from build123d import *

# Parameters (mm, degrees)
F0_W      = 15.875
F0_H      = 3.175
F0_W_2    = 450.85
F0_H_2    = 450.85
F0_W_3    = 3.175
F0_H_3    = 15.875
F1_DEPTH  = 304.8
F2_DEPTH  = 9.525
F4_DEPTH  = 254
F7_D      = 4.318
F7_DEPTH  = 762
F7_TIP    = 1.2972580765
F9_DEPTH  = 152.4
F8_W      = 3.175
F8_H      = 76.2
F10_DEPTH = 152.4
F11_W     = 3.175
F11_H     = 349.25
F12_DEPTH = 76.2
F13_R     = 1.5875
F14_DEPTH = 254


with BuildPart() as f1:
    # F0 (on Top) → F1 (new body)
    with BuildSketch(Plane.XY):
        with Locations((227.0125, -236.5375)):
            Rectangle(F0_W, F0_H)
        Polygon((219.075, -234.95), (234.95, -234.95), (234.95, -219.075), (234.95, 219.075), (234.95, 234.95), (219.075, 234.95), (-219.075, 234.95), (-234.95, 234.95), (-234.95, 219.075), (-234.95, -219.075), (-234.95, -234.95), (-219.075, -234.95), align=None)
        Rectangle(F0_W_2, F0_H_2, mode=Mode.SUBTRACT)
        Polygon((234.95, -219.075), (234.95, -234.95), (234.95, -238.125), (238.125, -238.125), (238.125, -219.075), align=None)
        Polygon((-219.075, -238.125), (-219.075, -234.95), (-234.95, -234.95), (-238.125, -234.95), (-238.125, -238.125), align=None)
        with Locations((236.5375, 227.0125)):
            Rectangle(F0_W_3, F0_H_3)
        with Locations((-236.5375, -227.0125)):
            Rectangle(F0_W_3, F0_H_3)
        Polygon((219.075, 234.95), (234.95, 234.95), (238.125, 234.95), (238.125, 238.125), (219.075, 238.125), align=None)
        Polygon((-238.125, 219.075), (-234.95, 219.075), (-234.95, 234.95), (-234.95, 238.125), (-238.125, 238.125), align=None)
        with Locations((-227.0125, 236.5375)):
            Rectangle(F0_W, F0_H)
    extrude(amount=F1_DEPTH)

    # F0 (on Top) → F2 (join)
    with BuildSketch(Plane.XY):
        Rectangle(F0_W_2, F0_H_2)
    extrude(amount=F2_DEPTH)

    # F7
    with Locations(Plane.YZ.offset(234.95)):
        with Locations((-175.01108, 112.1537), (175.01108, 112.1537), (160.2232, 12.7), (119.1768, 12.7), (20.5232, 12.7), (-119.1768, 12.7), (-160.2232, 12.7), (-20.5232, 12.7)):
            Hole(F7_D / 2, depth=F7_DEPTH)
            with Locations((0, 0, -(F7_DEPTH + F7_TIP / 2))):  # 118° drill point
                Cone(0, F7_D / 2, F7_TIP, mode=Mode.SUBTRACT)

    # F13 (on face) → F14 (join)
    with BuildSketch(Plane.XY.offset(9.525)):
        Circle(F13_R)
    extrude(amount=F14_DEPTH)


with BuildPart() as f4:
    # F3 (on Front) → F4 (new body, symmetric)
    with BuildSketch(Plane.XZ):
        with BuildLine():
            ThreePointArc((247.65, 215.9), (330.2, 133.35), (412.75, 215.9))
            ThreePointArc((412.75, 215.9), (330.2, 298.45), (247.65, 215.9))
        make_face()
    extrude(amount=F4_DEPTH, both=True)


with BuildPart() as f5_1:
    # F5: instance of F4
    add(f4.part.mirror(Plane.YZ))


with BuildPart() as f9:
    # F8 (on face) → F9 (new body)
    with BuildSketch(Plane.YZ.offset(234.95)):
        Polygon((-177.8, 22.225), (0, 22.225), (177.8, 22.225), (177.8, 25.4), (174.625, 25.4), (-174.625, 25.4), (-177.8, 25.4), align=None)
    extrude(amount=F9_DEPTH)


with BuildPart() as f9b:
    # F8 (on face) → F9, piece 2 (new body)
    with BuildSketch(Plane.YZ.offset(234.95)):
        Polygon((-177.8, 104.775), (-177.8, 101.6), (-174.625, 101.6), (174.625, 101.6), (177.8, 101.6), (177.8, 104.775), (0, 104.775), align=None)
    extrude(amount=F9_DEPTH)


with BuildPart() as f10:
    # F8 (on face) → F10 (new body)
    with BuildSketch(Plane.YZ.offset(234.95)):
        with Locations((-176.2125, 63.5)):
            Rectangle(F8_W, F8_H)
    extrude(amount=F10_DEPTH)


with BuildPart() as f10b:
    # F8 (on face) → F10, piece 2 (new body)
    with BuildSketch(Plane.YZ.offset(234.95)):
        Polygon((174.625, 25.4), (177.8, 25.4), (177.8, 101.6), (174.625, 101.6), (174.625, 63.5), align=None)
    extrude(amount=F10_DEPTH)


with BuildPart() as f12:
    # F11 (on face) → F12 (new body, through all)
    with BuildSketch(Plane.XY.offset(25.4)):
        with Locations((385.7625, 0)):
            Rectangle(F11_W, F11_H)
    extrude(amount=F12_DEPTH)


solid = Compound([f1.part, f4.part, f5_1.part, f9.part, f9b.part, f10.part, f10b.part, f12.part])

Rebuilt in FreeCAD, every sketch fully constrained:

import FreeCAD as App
import Part
import Sketcher

V = App.Vector
Q = App.Units.Quantity

doc = App.newDocument("Part")
body = doc.addObject("PartDesign::Body", "Body")

sketch1 = body.newObject("Sketcher::SketchObject", "Sketch")
sketch1.AttachmentSupport = (doc.getObject("XY_Plane"), [""])
sketch1.MapMode = "FlatFace"
sketch1.addGeometry(Part.LineSegment(V(219.1, -234.9, 0), V(219.1, -238.1, 0)), False)
sketch1.addGeometry(Part.LineSegment(V(219.1, -238.1, 0), V(238.1, -238.1, 0)), False)
sketch1.addGeometry(Part.LineSegment(V(238.1, -238.1, 0), V(238.1, -219.1, 0)), False)
sketch1.addGeometry(Part.LineSegment(V(238.1, -219.1, 0), V(234.9, -219.1, 0)), False)
sketch1.addGeometry(Part.LineSegment(V(234.9, -219.1, 0), V(234.9, 219.1, 0)), False)
sketch1.addGeometry(Part.LineSegment(V(234.9, 219.1, 0), V(238.1, 219.1, 0)), False)
sketch1.addGeometry(Part.LineSegment(V(238.1, 219.1, 0), V(238.1, 238.1, 0)), False)
sketch1.addGeometry(Part.LineSegment(V(238.1, 238.1, 0), V(219.1, 238.1, 0)), False)
sketch1.addGeometry(Part.LineSegment(V(219.1, 238.1, 0), V(219.1, 234.9, 0)), False)
sketch1.addGeometry(Part.LineSegment(V(219.1, 234.9, 0), V(-219.1, 234.9, 0)), False)
sketch1.addGeometry(Part.LineSegment(V(-219.1, 234.9, 0), V(-219.1, 238.1, 0)), False)
sketch1.addGeometry(Part.LineSegment(V(-219.1, 238.1, 0), V(-238.1, 238.1, 0)), False)
sketch1.addGeometry(Part.LineSegment(V(-238.1, 238.1, 0), V(-238.1, 219.1, 0)), False)
sketch1.addGeometry(Part.LineSegment(V(-238.1, 219.1, 0), V(-234.9, 219.1, 0)), False)
sketch1.addGeometry(Part.LineSegment(V(-234.9, 219.1, 0), V(-234.9, -219.1, 0)), False)
sketch1.addGeometry(Part.LineSegment(V(-234.9, -219.1, 0), V(-238.1, -219.1, 0)), False)
sketch1.addGeometry(Part.LineSegment(V(-238.1, -219.1, 0), V(-238.1, -238.1, 0)), False)
sketch1.addGeometry(Part.LineSegment(V(-238.1, -238.1, 0), V(-219.1, -238.1, 0)), False)
sketch1.addGeometry(Part.LineSegment(V(-219.1, -238.1, 0), V(-219.1, -234.9, 0)), False)
sketch1.addGeometry(Part.LineSegment(V(-219.1, -234.9, 0), V(219.1, -234.9, 0)), False)
sketch1.addGeometry(Part.LineSegment(V(225.4, -225.4, 0), V(-225.4, -225.4, 0)), False)
sketch1.addGeometry(Part.LineSegment(V(-225.4, -225.4, 0), V(-225.4, 225.4, 0)), False)
sketch1.addGeometry(Part.LineSegment(V(-225.4, 225.4, 0), V(225.4, 225.4, 0)), False)
sketch1.addGeometry(Part.LineSegment(V(225.4, 225.4, 0), V(225.4, -225.4, 0)), False)
sketch1.addConstraint(Sketcher.Constraint("Coincident", 0, 2, 1, 1))
sketch1.addConstraint(Sketcher.Constraint("Coincident", 1, 2, 2, 1))
sketch1.addConstraint(Sketcher.Constraint("Coincident", 2, 2, 3, 1))
sketch1.addConstraint(Sketcher.Constraint("Coincident", 3, 2, 4, 1))
sketch1.addConstraint(Sketcher.Constraint("Coincident", 4, 2, 5, 1))
sketch1.addConstraint(Sketcher.Constraint("Coincident", 5, 2, 6, 1))
sketch1.addConstraint(Sketcher.Constraint("Coincident", 6, 2, 7, 1))
sketch1.addConstraint(Sketcher.Constraint("Coincident", 7, 2, 8, 1))
sketch1.addConstraint(Sketcher.Constraint("Coincident", 8, 2, 9, 1))
sketch1.addConstraint(Sketcher.Constraint("Coincident", 9, 2, 10, 1))
sketch1.addConstraint(Sketcher.Constraint("Coincident", 10, 2, 11, 1))
sketch1.addConstraint(Sketcher.Constraint("Coincident", 11, 2, 12, 1))
sketch1.addConstraint(Sketcher.Constraint("Coincident", 12, 2, 13, 1))
sketch1.addConstraint(Sketcher.Constraint("Coincident", 13, 2, 14, 1))
sketch1.addConstraint(Sketcher.Constraint("Coincident", 14, 2, 15, 1))
sketch1.addConstraint(Sketcher.Constraint("Coincident", 15, 2, 16, 1))
sketch1.addConstraint(Sketcher.Constraint("Coincident", 16, 2, 17, 1))
sketch1.addConstraint(Sketcher.Constraint("Coincident", 17, 2, 18, 1))
sketch1.addConstraint(Sketcher.Constraint("Coincident", 18, 2, 19, 1))
sketch1.addConstraint(Sketcher.Constraint("Coincident", 19, 2, 0, 1))
sketch1.addConstraint(Sketcher.Constraint("Coincident", 20, 2, 21, 1))
sketch1.addConstraint(Sketcher.Constraint("Coincident", 21, 2, 22, 1))
sketch1.addConstraint(Sketcher.Constraint("Coincident", 22, 2, 23, 1))
sketch1.addConstraint(Sketcher.Constraint("Coincident", 23, 2, 20, 1))
sketch1.addConstraint(Sketcher.Constraint("Vertical", 0))
sketch1.addConstraint(Sketcher.Constraint("Horizontal", 1))
sketch1.addConstraint(Sketcher.Constraint("Vertical", 2))
sketch1.addConstraint(Sketcher.Constraint("Horizontal", 3))
sketch1.addConstraint(Sketcher.Constraint("Vertical", 4))
sketch1.addConstraint(Sketcher.Constraint("Horizontal", 5))
sketch1.addConstraint(Sketcher.Constraint("Vertical", 6))
sketch1.addConstraint(Sketcher.Constraint("Horizontal", 7))
sketch1.addConstraint(Sketcher.Constraint("Vertical", 8))
sketch1.addConstraint(Sketcher.Constraint("Horizontal", 9))
sketch1.addConstraint(Sketcher.Constraint("Vertical", 10))
sketch1.addConstraint(Sketcher.Constraint("Horizontal", 11))
sketch1.addConstraint(Sketcher.Constraint("Vertical", 12))
sketch1.addConstraint(Sketcher.Constraint("Horizontal", 13))
sketch1.addConstraint(Sketcher.Constraint("Vertical", 14))
sketch1.addConstraint(Sketcher.Constraint("Horizontal", 15))
sketch1.addConstraint(Sketcher.Constraint("Vertical", 16))
sketch1.addConstraint(Sketcher.Constraint("Horizontal", 17))
sketch1.addConstraint(Sketcher.Constraint("Vertical", 18))
sketch1.addConstraint(Sketcher.Constraint("Horizontal", 19))
sketch1.addConstraint(Sketcher.Constraint("Horizontal", 20))
sketch1.addConstraint(Sketcher.Constraint("Vertical", 21))
sketch1.addConstraint(Sketcher.Constraint("Horizontal", 22))
sketch1.addConstraint(Sketcher.Constraint("Vertical", 23))
sketch1.addConstraint(Sketcher.Constraint("Symmetric", 0, 2, 10, 2, -1, 1))
sketch1.addConstraint(Sketcher.Constraint("Symmetric", 2, 2, 12, 2, -1, 1))
sketch1.addConstraint(Sketcher.Constraint("Symmetric", 4, 2, 14, 2, -1, 1))
sketch1.addConstraint(Sketcher.Constraint("Symmetric", 6, 2, 16, 2, -1, 1))
sketch1.addConstraint(Sketcher.Constraint("Symmetric", 8, 2, 18, 2, -1, 1))
sketch1.addConstraint(Sketcher.Constraint("Symmetric", 20, 2, 22, 2, -1, 1))
sketch1.addConstraint(Sketcher.Constraint("Symmetric", 7, 2, 10, 2, -2))
sketch1.addConstraint(Sketcher.Constraint("Symmetric", 5, 2, 12, 2, -2))
sketch1.addConstraint(Sketcher.Constraint("Equal", 15, 0))
sketch1.addConstraint(Sketcher.Constraint("Equal", 17, 2))
sketch1.addConstraint(Sketcher.Constraint("Equal", 19, 4))
sketch1.addConstraint(Sketcher.Constraint("Equal", 22, 21))
sketch1.addConstraint(Sketcher.Constraint("DistanceY", 1, 2, 4, 2, Q("18 in")))
sketch1.addConstraint(Sketcher.Constraint("DistanceX", 1, 1, 1, 2, Q("0.75 in")))
sketch1.addConstraint(Sketcher.Constraint("DistanceX", 20, 2, 20, 1, Q("17.75 in")))
sketch1.addConstraint(Sketcher.Constraint("DistanceX", 3, 2, 3, 1, Q("0.125 in")))
pad1 = body.newObject("PartDesign::Pad", "Pad")
pad1.Profile = sketch1
pad1.Length = Q("12 in")

sketch2 = body.newObject("Sketcher::SketchObject", "Sketch001")
sketch2.AttachmentSupport = (doc.getObject("XY_Plane"), [""])
sketch2.MapMode = "FlatFace"
sketch2.addGeometry(Part.LineSegment(V(-225, 225, 0), V(-225, -225, 0)), False)
sketch2.addGeometry(Part.LineSegment(V(-225, -225, 0), V(225, -225, 0)), False)
sketch2.addGeometry(Part.LineSegment(V(225, -225, 0), V(225, 225, 0)), False)
sketch2.addGeometry(Part.LineSegment(V(225, 225, 0), V(-225, 225, 0)), False)
sketch2.addConstraint(Sketcher.Constraint("Coincident", 0, 2, 1, 1))
sketch2.addConstraint(Sketcher.Constraint("Coincident", 1, 2, 2, 1))
sketch2.addConstraint(Sketcher.Constraint("Coincident", 2, 2, 3, 1))
sketch2.addConstraint(Sketcher.Constraint("Coincident", 3, 2, 0, 1))
sketch2.addConstraint(Sketcher.Constraint("Vertical", 0))
sketch2.addConstraint(Sketcher.Constraint("Horizontal", 1))
sketch2.addConstraint(Sketcher.Constraint("Vertical", 2))
sketch2.addConstraint(Sketcher.Constraint("Horizontal", 3))
sketch2.addConstraint(Sketcher.Constraint("Symmetric", 0, 2, 2, 2, -1, 1))
sketch2.addConstraint(Sketcher.Constraint("Equal", 3, 0))
sketch2.addConstraint(Sketcher.Constraint("DistanceX", 1, 1, 1, 2, Q("17.75 in")))
pad2 = body.newObject("PartDesign::Pad", "Pad001")
pad2.Profile = sketch2
pad2.Length = Q("0.375 in")

sketch3 = body.newObject("Sketcher::SketchObject", "Sketch002")
sketch3.AttachmentSupport = (doc.getObject("YZ_Plane"), [""])
sketch3.MapMode = "FlatFace"
sketch3.AttachmentOffset = App.Placement(V(0, 0, 9.25 * 25.4), App.Rotation())
sketch3.addGeometry(Part.Circle(V(-175, 112.2, 0), V(0, 0, 1), 2.2), False)
sketch3.addGeometry(Part.Circle(V(175, 112.2, 0), V(0, 0, 1), 2.2), False)
sketch3.addGeometry(Part.Circle(V(160.2, 12.7, 0), V(0, 0, 1), 2.2), False)
sketch3.addGeometry(Part.Circle(V(119.2, 12.7, 0), V(0, 0, 1), 2.2), False)
sketch3.addGeometry(Part.Circle(V(20.5, 12.7, 0), V(0, 0, 1), 2.2), False)
sketch3.addGeometry(Part.Circle(V(-119.2, 12.7, 0), V(0, 0, 1), 2.2), False)
sketch3.addGeometry(Part.Circle(V(-160.2, 12.7, 0), V(0, 0, 1), 2.2), False)
sketch3.addGeometry(Part.Circle(V(-20.5, 12.7, 0), V(0, 0, 1), 2.2), False)
sketch3.addConstraint(Sketcher.Constraint("Equal", 0, 1))
sketch3.addConstraint(Sketcher.Constraint("Equal", 1, 2))
sketch3.addConstraint(Sketcher.Constraint("Equal", 2, 3))
sketch3.addConstraint(Sketcher.Constraint("Equal", 3, 4))
sketch3.addConstraint(Sketcher.Constraint("Equal", 4, 5))
sketch3.addConstraint(Sketcher.Constraint("Equal", 5, 6))
sketch3.addConstraint(Sketcher.Constraint("Equal", 6, 7))
sketch3.addConstraint(Sketcher.Constraint("Symmetric", 0, 3, 1, 3, -2))
sketch3.addConstraint(Sketcher.Constraint("Symmetric", 3, 3, 5, 3, -2))
sketch3.addConstraint(Sketcher.Constraint("Symmetric", 2, 3, 6, 3, -2))
sketch3.addConstraint(Sketcher.Constraint("Symmetric", 4, 3, 7, 3, -2))
sketch3.addConstraint(Sketcher.Constraint("Horizontal", 2, 3, 3, 3))
sketch3.addConstraint(Sketcher.Constraint("Horizontal", 3, 3, 4, 3))
sketch3.addConstraint(Sketcher.Constraint("Diameter", 0, Q("0.17 in")))
sketch3.addConstraint(Sketcher.Constraint("DistanceX", 5, 3, 2, 3, Q("11 in")))
sketch3.addConstraint(Sketcher.Constraint("DistanceY", -1, 1, 2, 3, Q("0.5 in")))
sketch3.addConstraint(Sketcher.Constraint("DistanceX", 4, 3, 2, 3, Q("5.5 in")))
sketch3.addConstraint(Sketcher.Constraint("DistanceX", -1, 1, 2, 3, Q("6.308 in")))
sketch3.addConstraint(Sketcher.Constraint("DistanceX", 0, 3, -1, 1, Q("6.8902 in")))
sketch3.addConstraint(Sketcher.Constraint("DistanceY", -1, 1, 0, 3, Q("4.4155 in")))
doc.recompute()
hole = body.newObject("PartDesign::Hole", "Hole")
hole.Profile = sketch3
hole.ThreadType = "None"
hole.Diameter = Q("0.17 in")
hole.DepthType = "Dimension"
hole.Depth = Q("30 in")
hole.DrillPoint = "Angled"
hole.DrillPointAngle = 118

sketch4 = body.newObject("Sketcher::SketchObject", "Sketch003")
sketch4.AttachmentSupport = (doc.getObject("XY_Plane"), [""])
sketch4.MapMode = "FlatFace"
sketch4.AttachmentOffset = App.Placement(V(0, 0, 0.375 * 25.4), App.Rotation())
sketch4.addGeometry(Part.Circle(V(0, 0, 0), V(0, 0, 1), 1.6), False)
sketch4.addConstraint(Sketcher.Constraint("Coincident", 0, 3, -1, 1))
sketch4.addConstraint(Sketcher.Constraint("Diameter", 0, Q("0.125 in")))
pad3 = body.newObject("PartDesign::Pad", "Pad002")
pad3.Profile = sketch4
pad3.Length = Q("10 in")
body2 = doc.addObject("PartDesign::Body", "Body001")

sketch5 = body2.newObject("Sketcher::SketchObject", "Sketch004")
sketch5.AttachmentSupport = (doc.getObject("XZ_Plane001"), [""])
sketch5.MapMode = "FlatFace"
sketch5.addGeometry(Part.Circle(V(330, 216, 0), V(0, 0, 1), 83), False)
sketch5.addConstraint(Sketcher.Constraint("Diameter", 0, Q("6.5 in")))
sketch5.addConstraint(Sketcher.Constraint("DistanceX", -1, 1, 0, 3, Q("13 in")))
sketch5.addConstraint(Sketcher.Constraint("DistanceY", -1, 1, 0, 3, Q("8.5 in")))
pad4 = body2.newObject("PartDesign::Pad", "Pad003")
pad4.Profile = sketch5
pad4.Length = Q("20 in")
pad4.Midplane = True
body3 = doc.addObject("PartDesign::Body", "Body002")
doc.recompute()

mirroring = doc.addObject("Part::Mirroring", "Mirroring")
mirroring.Source = body2
mirroring.Base = V(0, 0, 0)
mirroring.Normal = V(1, 0, 0)
body3.BaseFeature = mirroring
doc.recompute()
body4 = doc.addObject("PartDesign::Body", "Body003")

sketch6 = body4.newObject("Sketcher::SketchObject", "Sketch005")
sketch6.AttachmentSupport = (doc.getObject("YZ_Plane003"), [""])
sketch6.MapMode = "FlatFace"
sketch6.AttachmentOffset = App.Placement(V(0, 0, 9.25 * 25.4), App.Rotation())
sketch6.addGeometry(Part.LineSegment(V(-177.8, 22.2, 0), V(177.8, 22.2, 0)), False)
sketch6.addGeometry(Part.LineSegment(V(177.8, 22.2, 0), V(177.8, 25.4, 0)), False)
sketch6.addGeometry(Part.LineSegment(V(177.8, 25.4, 0), V(-177.8, 25.4, 0)), False)
sketch6.addGeometry(Part.LineSegment(V(-177.8, 25.4, 0), V(-177.8, 22.2, 0)), False)
sketch6.addConstraint(Sketcher.Constraint("Coincident", 0, 2, 1, 1))
sketch6.addConstraint(Sketcher.Constraint("Coincident", 1, 2, 2, 1))
sketch6.addConstraint(Sketcher.Constraint("Coincident", 2, 2, 3, 1))
sketch6.addConstraint(Sketcher.Constraint("Coincident", 3, 2, 0, 1))
sketch6.addConstraint(Sketcher.Constraint("Horizontal", 0))
sketch6.addConstraint(Sketcher.Constraint("Vertical", 1))
sketch6.addConstraint(Sketcher.Constraint("Horizontal", 2))
sketch6.addConstraint(Sketcher.Constraint("Vertical", 3))
sketch6.addConstraint(Sketcher.Constraint("DistanceX", 0, 1, 0, 2, Q("14 in")))
sketch6.addConstraint(Sketcher.Constraint("DistanceX", -1, 1, 0, 2, Q("7 in")))
sketch6.addConstraint(Sketcher.Constraint("DistanceY", -1, 1, 1, 2, Q("1 in")))
sketch6.addConstraint(Sketcher.Constraint("DistanceY", 1, 1, 1, 2, Q("0.125 in")))
pad5 = body4.newObject("PartDesign::Pad", "Pad004")
pad5.Profile = sketch6
pad5.Length = Q("6 in")
body5 = doc.addObject("PartDesign::Body", "Body004")

sketch7 = body5.newObject("Sketcher::SketchObject", "Sketch006")
sketch7.AttachmentSupport = (doc.getObject("YZ_Plane004"), [""])
sketch7.MapMode = "FlatFace"
sketch7.AttachmentOffset = App.Placement(V(0, 0, 9.25 * 25.4), App.Rotation())
sketch7.addGeometry(Part.LineSegment(V(-177.8, 104.8, 0), V(-177.8, 101.6, 0)), False)
sketch7.addGeometry(Part.LineSegment(V(-177.8, 101.6, 0), V(177.8, 101.6, 0)), False)
sketch7.addGeometry(Part.LineSegment(V(177.8, 101.6, 0), V(177.8, 104.8, 0)), False)
sketch7.addGeometry(Part.LineSegment(V(177.8, 104.8, 0), V(-177.8, 104.8, 0)), False)
sketch7.addConstraint(Sketcher.Constraint("Coincident", 0, 2, 1, 1))
sketch7.addConstraint(Sketcher.Constraint("Coincident", 1, 2, 2, 1))
sketch7.addConstraint(Sketcher.Constraint("Coincident", 2, 2, 3, 1))
sketch7.addConstraint(Sketcher.Constraint("Coincident", 3, 2, 0, 1))
sketch7.addConstraint(Sketcher.Constraint("Vertical", 0))
sketch7.addConstraint(Sketcher.Constraint("Horizontal", 1))
sketch7.addConstraint(Sketcher.Constraint("Vertical", 2))
sketch7.addConstraint(Sketcher.Constraint("Horizontal", 3))
sketch7.addConstraint(Sketcher.Constraint("DistanceX", 1, 1, 1, 2, Q("14 in")))
sketch7.addConstraint(Sketcher.Constraint("DistanceX", 0, 2, -1, 1, Q("7 in")))
sketch7.addConstraint(Sketcher.Constraint("DistanceY", -1, 1, 0, 2, Q("4 in")))
sketch7.addConstraint(Sketcher.Constraint("DistanceY", 0, 2, 0, 1, Q("0.125 in")))
pad6 = body5.newObject("PartDesign::Pad", "Pad005")
pad6.Profile = sketch7
pad6.Length = Q("6 in")
body6 = doc.addObject("PartDesign::Body", "Body005")

sketch8 = body6.newObject("Sketcher::SketchObject", "Sketch007")
sketch8.AttachmentSupport = (doc.getObject("YZ_Plane005"), [""])
sketch8.MapMode = "FlatFace"
sketch8.AttachmentOffset = App.Placement(V(0, 0, 9.25 * 25.4), App.Rotation())
sketch8.addGeometry(Part.LineSegment(V(-177.8, 101.6, 0), V(-177.8, 25.4, 0)), False)
sketch8.addGeometry(Part.LineSegment(V(-177.8, 25.4, 0), V(-174.6, 25.4, 0)), False)
sketch8.addGeometry(Part.LineSegment(V(-174.6, 25.4, 0), V(-174.6, 101.6, 0)), False)
sketch8.addGeometry(Part.LineSegment(V(-174.6, 101.6, 0), V(-177.8, 101.6, 0)), False)
sketch8.addConstraint(Sketcher.Constraint("Coincident", 0, 2, 1, 1))
sketch8.addConstraint(Sketcher.Constraint("Coincident", 1, 2, 2, 1))
sketch8.addConstraint(Sketcher.Constraint("Coincident", 2, 2, 3, 1))
sketch8.addConstraint(Sketcher.Constraint("Coincident", 3, 2, 0, 1))
sketch8.addConstraint(Sketcher.Constraint("Vertical", 0))
sketch8.addConstraint(Sketcher.Constraint("Horizontal", 1))
sketch8.addConstraint(Sketcher.Constraint("Vertical", 2))
sketch8.addConstraint(Sketcher.Constraint("Horizontal", 3))
sketch8.addConstraint(Sketcher.Constraint("DistanceY", 0, 2, 0, 1, Q("3 in")))
sketch8.addConstraint(Sketcher.Constraint("DistanceX", 0, 2, -1, 1, Q("7 in")))
sketch8.addConstraint(Sketcher.Constraint("DistanceY", -1, 1, 0, 2, Q("1 in")))
sketch8.addConstraint(Sketcher.Constraint("DistanceX", 1, 1, 1, 2, Q("0.125 in")))
pad7 = body6.newObject("PartDesign::Pad", "Pad006")
pad7.Profile = sketch8
pad7.Length = Q("6 in")
body7 = doc.addObject("PartDesign::Body", "Body006")

sketch9 = body7.newObject("Sketcher::SketchObject", "Sketch008")
sketch9.AttachmentSupport = (doc.getObject("YZ_Plane006"), [""])
sketch9.MapMode = "FlatFace"
sketch9.AttachmentOffset = App.Placement(V(0, 0, 9.25 * 25.4), App.Rotation())
sketch9.addGeometry(Part.LineSegment(V(174.6, 25.4, 0), V(177.8, 25.4, 0)), False)
sketch9.addGeometry(Part.LineSegment(V(177.8, 25.4, 0), V(177.8, 101.6, 0)), False)
sketch9.addGeometry(Part.LineSegment(V(177.8, 101.6, 0), V(174.6, 101.6, 0)), False)
sketch9.addGeometry(Part.LineSegment(V(174.6, 101.6, 0), V(174.6, 25.4, 0)), False)
sketch9.addConstraint(Sketcher.Constraint("Coincident", 0, 2, 1, 1))
sketch9.addConstraint(Sketcher.Constraint("Coincident", 1, 2, 2, 1))
sketch9.addConstraint(Sketcher.Constraint("Coincident", 2, 2, 3, 1))
sketch9.addConstraint(Sketcher.Constraint("Coincident", 3, 2, 0, 1))
sketch9.addConstraint(Sketcher.Constraint("Horizontal", 0))
sketch9.addConstraint(Sketcher.Constraint("Vertical", 1))
sketch9.addConstraint(Sketcher.Constraint("Horizontal", 2))
sketch9.addConstraint(Sketcher.Constraint("Vertical", 3))
sketch9.addConstraint(Sketcher.Constraint("DistanceY", 1, 1, 1, 2, Q("3 in")))
sketch9.addConstraint(Sketcher.Constraint("DistanceX", -1, 1, 0, 2, Q("7 in")))
sketch9.addConstraint(Sketcher.Constraint("DistanceY", -1, 1, 0, 2, Q("1 in")))
sketch9.addConstraint(Sketcher.Constraint("DistanceX", 0, 1, 0, 2, Q("0.125 in")))
pad8 = body7.newObject("PartDesign::Pad", "Pad007")
pad8.Profile = sketch9
pad8.Length = Q("6 in")
body8 = doc.addObject("PartDesign::Body", "Body007")

sketch10 = body8.newObject("Sketcher::SketchObject", "Sketch009")
sketch10.AttachmentSupport = (doc.getObject("XY_Plane007"), [""])
sketch10.MapMode = "FlatFace"
sketch10.AttachmentOffset = App.Placement(V(0, 0, 1 * 25.4), App.Rotation())
sketch10.addGeometry(Part.LineSegment(V(384.2, 174.6, 0), V(384.2, -174.6, 0)), False)
sketch10.addGeometry(Part.LineSegment(V(384.2, -174.6, 0), V(387.4, -174.6, 0)), False)
sketch10.addGeometry(Part.LineSegment(V(387.4, -174.6, 0), V(387.4, 174.6, 0)), False)
sketch10.addGeometry(Part.LineSegment(V(387.4, 174.6, 0), V(384.2, 174.6, 0)), False)
sketch10.addConstraint(Sketcher.Constraint("Coincident", 0, 2, 1, 1))
sketch10.addConstraint(Sketcher.Constraint("Coincident", 1, 2, 2, 1))
sketch10.addConstraint(Sketcher.Constraint("Coincident", 2, 2, 3, 1))
sketch10.addConstraint(Sketcher.Constraint("Coincident", 3, 2, 0, 1))
sketch10.addConstraint(Sketcher.Constraint("Vertical", 0))
sketch10.addConstraint(Sketcher.Constraint("Horizontal", 1))
sketch10.addConstraint(Sketcher.Constraint("Vertical", 2))
sketch10.addConstraint(Sketcher.Constraint("Horizontal", 3))
sketch10.addConstraint(Sketcher.Constraint("DistanceY", 0, 2, 0, 1, Q("13.75 in")))
sketch10.addConstraint(Sketcher.Constraint("DistanceX", 1, 1, 1, 2, Q("0.125 in")))
sketch10.addConstraint(Sketcher.Constraint("DistanceX", -1, 1, 1, 2, Q("15.25 in")))
sketch10.addConstraint(Sketcher.Constraint("DistanceY", 0, 2, -1, 1, Q("6.875 in")))
pad9 = body8.newObject("PartDesign::Pad", "Pad008")
pad9.Profile = sketch10
pad9.Length = Q("3 in")
mirroring.Visibility = False

doc.recompute()
